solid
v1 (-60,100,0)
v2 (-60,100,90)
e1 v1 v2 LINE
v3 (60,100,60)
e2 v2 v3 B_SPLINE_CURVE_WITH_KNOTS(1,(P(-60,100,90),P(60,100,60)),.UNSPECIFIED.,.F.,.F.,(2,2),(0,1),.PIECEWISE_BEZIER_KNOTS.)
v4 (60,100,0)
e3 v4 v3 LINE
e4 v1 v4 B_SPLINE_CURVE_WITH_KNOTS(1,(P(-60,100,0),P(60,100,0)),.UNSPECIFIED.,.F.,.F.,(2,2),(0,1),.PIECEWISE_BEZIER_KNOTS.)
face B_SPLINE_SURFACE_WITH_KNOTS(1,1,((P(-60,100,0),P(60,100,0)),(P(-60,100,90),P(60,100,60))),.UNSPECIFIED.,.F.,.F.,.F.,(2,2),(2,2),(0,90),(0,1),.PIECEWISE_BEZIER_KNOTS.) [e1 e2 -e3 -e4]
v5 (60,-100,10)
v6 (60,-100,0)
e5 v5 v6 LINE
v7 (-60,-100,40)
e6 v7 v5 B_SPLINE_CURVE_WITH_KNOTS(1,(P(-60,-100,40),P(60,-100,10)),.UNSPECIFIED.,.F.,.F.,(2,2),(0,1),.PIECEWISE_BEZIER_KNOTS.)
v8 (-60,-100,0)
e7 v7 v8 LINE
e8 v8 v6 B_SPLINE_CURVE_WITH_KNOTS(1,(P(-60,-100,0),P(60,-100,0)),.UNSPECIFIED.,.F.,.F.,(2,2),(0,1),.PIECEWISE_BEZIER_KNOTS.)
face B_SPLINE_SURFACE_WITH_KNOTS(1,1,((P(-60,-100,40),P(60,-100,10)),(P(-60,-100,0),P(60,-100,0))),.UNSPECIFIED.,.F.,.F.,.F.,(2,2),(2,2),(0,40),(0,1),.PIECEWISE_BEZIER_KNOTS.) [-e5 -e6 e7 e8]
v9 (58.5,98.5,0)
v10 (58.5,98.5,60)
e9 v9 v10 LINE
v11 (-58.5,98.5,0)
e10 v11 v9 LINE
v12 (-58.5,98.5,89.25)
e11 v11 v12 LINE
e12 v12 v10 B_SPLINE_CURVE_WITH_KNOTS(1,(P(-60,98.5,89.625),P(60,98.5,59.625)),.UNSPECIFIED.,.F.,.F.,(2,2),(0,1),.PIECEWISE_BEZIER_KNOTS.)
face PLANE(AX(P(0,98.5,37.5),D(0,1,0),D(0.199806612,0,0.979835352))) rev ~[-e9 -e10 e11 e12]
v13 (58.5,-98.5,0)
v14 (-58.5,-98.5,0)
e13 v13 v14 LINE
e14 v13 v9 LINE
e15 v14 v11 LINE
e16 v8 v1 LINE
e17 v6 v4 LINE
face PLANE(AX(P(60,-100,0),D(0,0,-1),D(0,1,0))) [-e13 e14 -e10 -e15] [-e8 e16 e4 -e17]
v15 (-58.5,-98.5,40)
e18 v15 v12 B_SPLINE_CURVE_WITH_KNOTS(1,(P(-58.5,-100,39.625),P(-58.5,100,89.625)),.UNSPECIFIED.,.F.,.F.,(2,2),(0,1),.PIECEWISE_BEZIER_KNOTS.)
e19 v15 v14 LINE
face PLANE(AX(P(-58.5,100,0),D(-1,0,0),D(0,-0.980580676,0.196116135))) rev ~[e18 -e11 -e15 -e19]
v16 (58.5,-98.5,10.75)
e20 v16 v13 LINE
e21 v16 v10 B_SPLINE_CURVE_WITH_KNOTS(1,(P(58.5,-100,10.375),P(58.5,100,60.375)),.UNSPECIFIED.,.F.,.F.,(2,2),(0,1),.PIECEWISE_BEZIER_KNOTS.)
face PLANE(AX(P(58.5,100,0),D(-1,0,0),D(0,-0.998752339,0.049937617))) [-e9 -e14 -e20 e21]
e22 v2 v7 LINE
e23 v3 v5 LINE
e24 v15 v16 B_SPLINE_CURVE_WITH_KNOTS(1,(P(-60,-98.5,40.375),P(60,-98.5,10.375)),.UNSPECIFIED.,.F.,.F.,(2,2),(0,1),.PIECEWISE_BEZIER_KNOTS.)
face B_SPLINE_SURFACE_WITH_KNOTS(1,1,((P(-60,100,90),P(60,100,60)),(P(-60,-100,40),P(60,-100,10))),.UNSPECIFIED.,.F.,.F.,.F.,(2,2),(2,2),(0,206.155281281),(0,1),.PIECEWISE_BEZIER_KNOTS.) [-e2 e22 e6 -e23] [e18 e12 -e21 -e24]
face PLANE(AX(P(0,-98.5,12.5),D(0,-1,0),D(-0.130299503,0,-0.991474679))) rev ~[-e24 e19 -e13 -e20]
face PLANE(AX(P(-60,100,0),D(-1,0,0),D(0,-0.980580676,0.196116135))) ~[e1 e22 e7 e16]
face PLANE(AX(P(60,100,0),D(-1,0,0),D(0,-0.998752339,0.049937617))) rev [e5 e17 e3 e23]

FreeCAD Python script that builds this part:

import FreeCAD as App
import Part
import Sketcher
from FreeCAD import Vector


def faces_at(feature, points):
    """Names of the faces that lie closest to the given points."""
    faces = feature.Shape.Faces
    near = lambda p: min(range(len(faces)), key=lambda i: faces[i].distToShape(Part.Vertex(*p))[0])
    return sorted({f"Face{near(p) + 1}" for p in points})

doc = App.newDocument("Part")
body = doc.addObject("PartDesign::Body", "Body")

sketch1 = body.newObject("Sketcher::SketchObject", "Sketch")
sketch1.AttachmentSupport = (doc.getObject("YZ_Plane"), [""])
sketch1.MapMode = "FlatFace"
sketch1.AttachmentOffset = App.Placement(Vector(0, 0, -60), App.Rotation())
sketch1.addGeometry(Part.LineSegment(Vector(100, 0, 0), Vector(100, 90, 0)), False)
sketch1.addGeometry(Part.LineSegment(Vector(100, 90, 0), Vector(-100, 40, 0)), False)
sketch1.addGeometry(Part.LineSegment(Vector(-100, 40, 0), Vector(-100, 0, 0)), False)
sketch1.addGeometry(Part.LineSegment(Vector(-100, 0, 0), Vector(100, 0, 0)), False)
sketch1.addConstraint(Sketcher.Constraint("Coincident", 0, 2, 1, 1))
sketch1.addConstraint(Sketcher.Constraint("Coincident", 1, 2, 2, 1))
sketch1.addConstraint(Sketcher.Constraint("Coincident", 2, 2, 3, 1))
sketch1.addConstraint(Sketcher.Constraint("Coincident", 3, 2, 0, 1))
sketch1.addConstraint(Sketcher.Constraint("Vertical", 0))
sketch1.addConstraint(Sketcher.Constraint("Vertical", 2))
sketch1.addConstraint(Sketcher.Constraint("Horizontal", 3))
sketch1.addConstraint(Sketcher.Constraint("Symmetric", 2, 2, 3, 2, -1, 1))
sketch1.addConstraint(Sketcher.Constraint("DistanceX", 3, 1, 3, 2, 200.0))
sketch1.addConstraint(Sketcher.Constraint("DistanceY", 0, 1, 0, 2, 90.0))
sketch1.addConstraint(Sketcher.Constraint("DistanceY", 2, 2, 2, 1, 40.0))

sketch2 = body.newObject("Sketcher::SketchObject", "Sketch001")
sketch2.AttachmentSupport = (doc.getObject("YZ_Plane"), [""])
sketch2.MapMode = "FlatFace"
sketch2.AttachmentOffset = App.Placement(Vector(0, 0, 60), App.Rotation())
sketch2.addGeometry(Part.LineSegment(Vector(100, 60, 0), Vector(-100, 10, 0)), False)
sketch2.addGeometry(Part.LineSegment(Vector(-100, 10, 0), Vector(-100, 0, 0)), False)
sketch2.addGeometry(Part.LineSegment(Vector(-100, 0, 0), Vector(100, 0, 0)), False)
sketch2.addGeometry(Part.LineSegment(Vector(100, 0, 0), Vector(100, 60, 0)), False)
sketch2.addConstraint(Sketcher.Constraint("Coincident", 0, 2, 1, 1))
sketch2.addConstraint(Sketcher.Constraint("Coincident", 1, 2, 2, 1))
sketch2.addConstraint(Sketcher.Constraint("Coincident", 2, 2, 3, 1))
sketch2.addConstraint(Sketcher.Constraint("Coincident", 3, 2, 0, 1))
sketch2.addConstraint(Sketcher.Constraint("Vertical", 1))
sketch2.addConstraint(Sketcher.Constraint("Horizontal", 2))
sketch2.addConstraint(Sketcher.Constraint("Vertical", 3))
sketch2.addConstraint(Sketcher.Constraint("Symmetric", 1, 2, 2, 2, -1, 1))
sketch2.addConstraint(Sketcher.Constraint("DistanceX", 2, 1, 2, 2, 200.0))
sketch2.addConstraint(Sketcher.Constraint("DistanceY", 1, 2, 1, 1, 10.0))
sketch2.addConstraint(Sketcher.Constraint("DistanceY", 3, 1, 3, 2, 60.0))

additiveloft = body.newObject("PartDesign::AdditiveLoft", "AdditiveLoft")
additiveloft.Profile = sketch1
additiveloft.Sections = [sketch2]
doc.recompute()

thickness = body.newObject("PartDesign::Thickness", "Thickness")
thickness.Base = (additiveloft, faces_at(additiveloft, [(0, 0, 0), (0, 0, 50)]))
thickness.Value = 1.5
thickness.Reversed = True
thickness.Join = "Intersection"

doc.recompute()
